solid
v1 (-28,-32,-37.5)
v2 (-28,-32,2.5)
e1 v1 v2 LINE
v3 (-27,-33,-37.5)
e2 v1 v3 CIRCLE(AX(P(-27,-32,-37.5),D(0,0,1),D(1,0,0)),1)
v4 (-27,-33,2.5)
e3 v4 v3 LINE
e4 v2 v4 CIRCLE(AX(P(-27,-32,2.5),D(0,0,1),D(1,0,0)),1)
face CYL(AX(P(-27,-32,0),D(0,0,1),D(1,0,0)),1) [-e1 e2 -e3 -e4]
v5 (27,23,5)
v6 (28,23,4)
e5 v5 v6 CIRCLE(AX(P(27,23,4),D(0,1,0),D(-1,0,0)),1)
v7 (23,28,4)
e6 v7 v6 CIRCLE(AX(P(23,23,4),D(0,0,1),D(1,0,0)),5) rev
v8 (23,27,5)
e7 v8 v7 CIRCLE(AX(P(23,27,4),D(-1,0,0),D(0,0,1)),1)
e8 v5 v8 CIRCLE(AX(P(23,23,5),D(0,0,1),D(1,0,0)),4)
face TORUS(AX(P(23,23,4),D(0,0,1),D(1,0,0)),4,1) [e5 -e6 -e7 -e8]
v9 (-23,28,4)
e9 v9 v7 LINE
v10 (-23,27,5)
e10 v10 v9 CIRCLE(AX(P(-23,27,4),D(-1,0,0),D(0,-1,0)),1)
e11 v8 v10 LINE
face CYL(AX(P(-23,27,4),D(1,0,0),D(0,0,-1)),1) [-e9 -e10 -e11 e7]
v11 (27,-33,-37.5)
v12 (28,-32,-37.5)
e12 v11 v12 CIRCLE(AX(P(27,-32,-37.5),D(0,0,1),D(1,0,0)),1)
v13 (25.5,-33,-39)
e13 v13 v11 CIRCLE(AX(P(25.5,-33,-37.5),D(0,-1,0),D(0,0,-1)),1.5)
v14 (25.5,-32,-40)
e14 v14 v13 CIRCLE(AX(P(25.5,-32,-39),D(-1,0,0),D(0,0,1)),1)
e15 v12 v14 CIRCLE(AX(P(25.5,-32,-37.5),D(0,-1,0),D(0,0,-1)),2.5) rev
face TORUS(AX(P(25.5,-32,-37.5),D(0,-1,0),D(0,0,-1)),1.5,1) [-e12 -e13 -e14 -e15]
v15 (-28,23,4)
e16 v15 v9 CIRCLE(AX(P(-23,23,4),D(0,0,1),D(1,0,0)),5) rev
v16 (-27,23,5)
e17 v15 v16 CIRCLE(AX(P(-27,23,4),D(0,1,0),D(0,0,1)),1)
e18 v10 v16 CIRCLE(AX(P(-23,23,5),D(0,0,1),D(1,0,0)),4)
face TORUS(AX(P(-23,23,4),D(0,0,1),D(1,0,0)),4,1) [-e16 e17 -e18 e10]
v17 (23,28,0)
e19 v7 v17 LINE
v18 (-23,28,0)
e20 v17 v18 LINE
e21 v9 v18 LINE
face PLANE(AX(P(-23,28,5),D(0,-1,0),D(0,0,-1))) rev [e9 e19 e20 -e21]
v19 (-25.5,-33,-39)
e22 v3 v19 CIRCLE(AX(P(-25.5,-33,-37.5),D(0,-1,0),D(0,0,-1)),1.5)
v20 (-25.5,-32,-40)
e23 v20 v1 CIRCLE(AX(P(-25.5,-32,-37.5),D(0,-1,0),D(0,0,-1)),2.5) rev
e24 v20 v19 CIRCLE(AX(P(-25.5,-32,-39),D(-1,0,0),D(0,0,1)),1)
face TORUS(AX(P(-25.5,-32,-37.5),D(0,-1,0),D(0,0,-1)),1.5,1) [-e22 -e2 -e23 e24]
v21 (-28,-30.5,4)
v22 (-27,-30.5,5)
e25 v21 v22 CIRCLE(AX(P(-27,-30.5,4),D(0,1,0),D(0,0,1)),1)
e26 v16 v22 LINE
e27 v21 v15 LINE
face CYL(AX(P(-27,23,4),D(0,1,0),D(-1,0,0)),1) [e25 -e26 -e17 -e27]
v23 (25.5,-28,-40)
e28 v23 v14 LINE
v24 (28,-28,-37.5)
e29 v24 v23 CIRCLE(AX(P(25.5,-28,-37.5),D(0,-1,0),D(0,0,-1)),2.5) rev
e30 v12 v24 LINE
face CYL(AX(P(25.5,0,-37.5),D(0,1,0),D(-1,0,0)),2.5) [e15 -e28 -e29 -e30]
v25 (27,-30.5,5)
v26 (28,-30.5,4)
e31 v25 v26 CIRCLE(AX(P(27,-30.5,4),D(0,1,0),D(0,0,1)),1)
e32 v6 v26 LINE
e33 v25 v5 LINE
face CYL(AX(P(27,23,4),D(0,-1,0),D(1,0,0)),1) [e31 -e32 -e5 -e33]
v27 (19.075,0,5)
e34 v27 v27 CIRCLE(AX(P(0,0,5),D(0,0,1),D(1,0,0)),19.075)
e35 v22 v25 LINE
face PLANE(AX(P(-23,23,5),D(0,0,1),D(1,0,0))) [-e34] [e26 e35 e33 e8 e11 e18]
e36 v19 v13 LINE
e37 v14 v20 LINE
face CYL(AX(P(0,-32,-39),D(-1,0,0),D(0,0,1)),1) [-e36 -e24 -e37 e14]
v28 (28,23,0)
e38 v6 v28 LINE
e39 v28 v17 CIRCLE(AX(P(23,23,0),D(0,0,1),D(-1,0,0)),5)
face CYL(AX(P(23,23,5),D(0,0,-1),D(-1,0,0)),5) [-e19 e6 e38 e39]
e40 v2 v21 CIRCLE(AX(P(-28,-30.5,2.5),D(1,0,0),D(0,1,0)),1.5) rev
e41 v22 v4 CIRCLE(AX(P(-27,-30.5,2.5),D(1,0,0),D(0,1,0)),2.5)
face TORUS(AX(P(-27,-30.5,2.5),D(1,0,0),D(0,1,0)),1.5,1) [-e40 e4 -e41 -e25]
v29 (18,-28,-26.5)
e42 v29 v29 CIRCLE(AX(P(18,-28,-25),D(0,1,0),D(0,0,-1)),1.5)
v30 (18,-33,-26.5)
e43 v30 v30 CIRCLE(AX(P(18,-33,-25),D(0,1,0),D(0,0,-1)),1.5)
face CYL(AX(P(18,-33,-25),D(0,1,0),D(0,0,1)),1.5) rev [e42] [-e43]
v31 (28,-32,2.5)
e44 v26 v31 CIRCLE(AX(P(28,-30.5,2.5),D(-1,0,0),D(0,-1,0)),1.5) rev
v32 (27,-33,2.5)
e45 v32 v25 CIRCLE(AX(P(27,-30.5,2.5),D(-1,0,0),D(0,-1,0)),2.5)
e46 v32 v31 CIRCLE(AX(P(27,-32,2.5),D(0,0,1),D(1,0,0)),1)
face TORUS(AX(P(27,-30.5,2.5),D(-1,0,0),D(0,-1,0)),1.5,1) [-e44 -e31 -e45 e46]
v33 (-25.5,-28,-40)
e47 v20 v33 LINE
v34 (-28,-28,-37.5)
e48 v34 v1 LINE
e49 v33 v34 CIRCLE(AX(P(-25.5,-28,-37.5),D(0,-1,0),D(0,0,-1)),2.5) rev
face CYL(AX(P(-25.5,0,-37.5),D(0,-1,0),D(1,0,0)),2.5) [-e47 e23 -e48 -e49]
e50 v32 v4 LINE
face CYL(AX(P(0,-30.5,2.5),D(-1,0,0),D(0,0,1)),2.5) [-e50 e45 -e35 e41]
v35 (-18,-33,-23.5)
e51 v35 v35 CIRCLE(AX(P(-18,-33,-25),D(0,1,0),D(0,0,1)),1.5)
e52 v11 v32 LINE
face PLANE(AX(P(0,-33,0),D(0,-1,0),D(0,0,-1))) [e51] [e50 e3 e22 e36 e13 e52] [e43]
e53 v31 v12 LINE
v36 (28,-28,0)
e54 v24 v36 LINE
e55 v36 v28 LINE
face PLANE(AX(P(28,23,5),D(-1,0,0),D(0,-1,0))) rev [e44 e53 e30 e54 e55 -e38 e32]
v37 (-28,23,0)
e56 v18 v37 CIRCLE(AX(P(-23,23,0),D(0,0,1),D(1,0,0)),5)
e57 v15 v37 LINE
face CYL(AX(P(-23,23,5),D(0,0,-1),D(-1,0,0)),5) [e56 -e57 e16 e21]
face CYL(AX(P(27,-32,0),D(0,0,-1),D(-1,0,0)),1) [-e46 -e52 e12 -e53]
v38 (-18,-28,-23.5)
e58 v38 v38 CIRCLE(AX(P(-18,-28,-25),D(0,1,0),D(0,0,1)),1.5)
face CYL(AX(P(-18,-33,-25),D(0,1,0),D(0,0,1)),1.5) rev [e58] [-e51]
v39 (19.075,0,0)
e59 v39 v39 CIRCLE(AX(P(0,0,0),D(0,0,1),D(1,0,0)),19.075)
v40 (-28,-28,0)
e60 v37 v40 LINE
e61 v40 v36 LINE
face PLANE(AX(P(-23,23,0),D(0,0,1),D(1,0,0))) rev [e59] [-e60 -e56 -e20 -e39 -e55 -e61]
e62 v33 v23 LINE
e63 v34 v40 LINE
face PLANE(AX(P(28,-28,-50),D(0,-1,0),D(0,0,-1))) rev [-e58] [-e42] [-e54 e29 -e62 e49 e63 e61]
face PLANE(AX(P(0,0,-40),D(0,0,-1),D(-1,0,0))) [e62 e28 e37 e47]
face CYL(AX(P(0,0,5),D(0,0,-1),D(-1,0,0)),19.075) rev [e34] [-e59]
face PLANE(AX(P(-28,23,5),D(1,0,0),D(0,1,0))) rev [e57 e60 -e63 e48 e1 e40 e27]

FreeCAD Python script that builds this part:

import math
import FreeCAD as App
import Part
import Sketcher

V = App.Vector


def edges_at(feature, points):
    """Names of the edges that pass closest to the given points."""
    edges = feature.Shape.Edges
    near = lambda p: min(range(len(edges)), key=lambda i: edges[i].distToShape(Part.Vertex(*p))[0])
    return sorted({f"Edge{near(p) + 1}" for p in points})

doc = App.newDocument("Part")
body = doc.addObject("PartDesign::Body", "Body")

# Sketch on XY plane
sketch1 = body.newObject("Sketcher::SketchObject", "Sketch")
sketch1.AttachmentSupport = (doc.getObject("XY_Plane"), [""])
sketch1.MapMode = "FlatFace"
sketch1.addGeometry([
    Part.LineSegment(V(23, 28, 0), V(-23, 28, 0)),  # 0
    Part.ArcOfCircle(Part.Circle(V(-23, 23, 0), V(0, 0, 1), 5), math.radians(90), math.radians(180)),  # 1
    Part.LineSegment(V(-28, 23, 0), V(-28, -28, 0)),  # 2
    Part.LineSegment(V(-28, -28, 0), V(28, -28, 0)),  # 3
    Part.LineSegment(V(28, -28, 0), V(28, 23, 0)),  # 4
    Part.ArcOfCircle(Part.Circle(V(23, 23, 0), V(0, 0, 1), 5), math.radians(0), math.radians(90)),  # 5
    Part.Circle(V(0, 0, 0), V(0, 0, 1), 19.075),  # 6
], False)
sketch1.addConstraint([
    Sketcher.Constraint("Tangent", 0, 2, 1, 1),
    Sketcher.Constraint("Tangent", 1, 2, 2, 1),
    Sketcher.Constraint("Coincident", 2, 2, 3, 1),
    Sketcher.Constraint("Coincident", 3, 2, 4, 1),
    Sketcher.Constraint("Tangent", 4, 2, 5, 1),
    Sketcher.Constraint("Tangent", 5, 2, 0, 1),
    Sketcher.Constraint("Horizontal", 0),
    Sketcher.Constraint("Vertical", 2),
    Sketcher.Constraint("Horizontal", 3),
    Sketcher.Constraint("Vertical", 4),
    Sketcher.Constraint("Coincident", 6, 3, -1, 1),
    Sketcher.Constraint("Equal", 1, 5),
    Sketcher.Constraint("Radius", 1, 5.0),
    Sketcher.Constraint("Diameter", 6, 38.15),
    Sketcher.Constraint("DistanceX", 0, 2, 0, 1, 46.0),
    Sketcher.Constraint("DistanceY", 2, 2, 2, 1, 51.0),
    Sketcher.Constraint("DistanceX", 1, 3, -1, 1, 23.0),
    Sketcher.Constraint("DistanceY", -1, 1, 1, 3, 23.0),
])
pad1 = body.newObject("PartDesign::Pad", "Pad")
pad1.Profile = sketch1
pad1.Length = 5

# Sketch on XZ plane
sketch2 = body.newObject("Sketcher::SketchObject", "Sketch001")
sketch2.AttachmentSupport = (doc.getObject("XZ_Plane"), [""])
sketch2.MapMode = "FlatFace"
sketch2.AttachmentOffset = App.Placement(V(0, 0, 28), App.Rotation())
sketch2.addGeometry([
    Part.LineSegment(V(-28, 5, 0), V(-28, 0, 0)),
    Part.LineSegment(V(-28, 0, 0), V(28, 0, 0)),
    Part.LineSegment(V(28, 0, 0), V(28, 5, 0)),
    Part.LineSegment(V(28, 5, 0), V(-28, 5, 0)),
], False)
sketch2.addConstraint([
    Sketcher.Constraint("Coincident", 0, 2, 1, 1),
    Sketcher.Constraint("Coincident", 1, 2, 2, 1),
    Sketcher.Constraint("Coincident", 2, 2, 3, 1),
    Sketcher.Constraint("Coincident", 3, 2, 0, 1),
    Sketcher.Constraint("Vertical", 0),
    Sketcher.Constraint("Horizontal", 1),
    Sketcher.Constraint("Vertical", 2),
    Sketcher.Constraint("Horizontal", 3),
    Sketcher.Constraint("Symmetric", 0, 2, 1, 2, -1, 1),
    Sketcher.Constraint("DistanceX", 1, 1, 1, 2, 56.0),
    Sketcher.Constraint("DistanceY", 0, 2, 0, 1, 5.0),
])
pad2 = body.newObject("PartDesign::Pad", "Pad001")
pad2.Profile = sketch2
pad2.Length = 5

# Sketch on XY plane
sketch3 = body.newObject("Sketcher::SketchObject", "Sketch002")
sketch3.AttachmentSupport = (doc.getObject("XY_Plane"), [""])
sketch3.MapMode = "FlatFace"
sketch3.addGeometry([
    Part.LineSegment(V(28, -28, 0), V(28, -33, 0)),
    Part.LineSegment(V(28, -33, 0), V(-28, -33, 0)),
    Part.LineSegment(V(-28, -33, 0), V(-28, -28, 0)),
    Part.LineSegment(V(-28, -28, 0), V(28, -28, 0)),
], False)
sketch3.addConstraint([
    Sketcher.Constraint("Coincident", 0, 2, 1, 1),
    Sketcher.Constraint("Coincident", 1, 2, 2, 1),
    Sketcher.Constraint("Coincident", 2, 2, 3, 1),
    Sketcher.Constraint("Coincident", 3, 2, 0, 1),
    Sketcher.Constraint("Vertical", 0),
    Sketcher.Constraint("Horizontal", 1),
    Sketcher.Constraint("Vertical", 2),
    Sketcher.Constraint("Horizontal", 3),
    Sketcher.Constraint("DistanceX", 1, 2, 1, 1, 56.0),
    Sketcher.Constraint("DistanceY", 0, 2, 0, 1, 5.0),
    Sketcher.Constraint("DistanceX", -1, 1, 0, 2, 28.0),
    Sketcher.Constraint("DistanceY", 0, 2, -1, 1, 33.0),
])
pad3 = body.newObject("PartDesign::Pad", "Pad002")
pad3.Profile = sketch3
pad3.Length = 50
pad3.Reversed = True
doc.recompute()

fillet = body.newObject("PartDesign::Fillet", "Fillet")
fillet.Base = (pad3, edges_at(pad3, [(0, -33, 5)]))
fillet.Radius = 2.5

# Sketch on XZ plane
sketch4 = body.newObject("Sketcher::SketchObject", "Sketch003")
sketch4.AttachmentSupport = (doc.getObject("XZ_Plane"), [""])
sketch4.MapMode = "FlatFace"
sketch4.AttachmentOffset = App.Placement(V(0, 0, 28), App.Rotation())
sketch4.addGeometry([
    Part.Circle(V(-18, -25, 0), V(0, 0, 1), 1.5),
    Part.Circle(V(18, -25, 0), V(0, 0, 1), 1.5),
], False)
sketch4.addConstraint([
    Sketcher.Constraint("Equal", 0, 1),
    Sketcher.Constraint("Symmetric", 0, 3, 1, 3, -2),
    Sketcher.Constraint("Diameter", 0, 3.0),
    Sketcher.Constraint("DistanceX", 0, 3, -1, 1, 18.0),
    Sketcher.Constraint("DistanceY", 0, 3, -1, 1, 25.0),
])
pocket1 = body.newObject("PartDesign::Pocket", "Pocket")
pocket1.Profile = sketch4
pocket1.Length = 5
pocket1.Reversed = True

# Sketch on XY plane
sketch5 = body.newObject("Sketcher::SketchObject", "Sketch004")
sketch5.AttachmentSupport = (doc.getObject("XY_Plane"), [""])
sketch5.MapMode = "FlatFace"
sketch5.AttachmentOffset = App.Placement(V(0, 0, -50), App.Rotation())
sketch5.addGeometry([
    Part.LineSegment(V(28, -28, 0), V(28, -33, 0)),
    Part.LineSegment(V(28, -33, 0), V(-28, -33, 0)),
    Part.LineSegment(V(-28, -33, 0), V(-28, -28, 0)),
    Part.LineSegment(V(-28, -28, 0), V(28, -28, 0)),
], False)
sketch5.addConstraint([
    Sketcher.Constraint("Coincident", 0, 2, 1, 1),
    Sketcher.Constraint("Coincident", 1, 2, 2, 1),
    Sketcher.Constraint("Coincident", 2, 2, 3, 1),
    Sketcher.Constraint("Coincident", 3, 2, 0, 1),
    Sketcher.Constraint("Vertical", 0),
    Sketcher.Constraint("Horizontal", 1),
    Sketcher.Constraint("Vertical", 2),
    Sketcher.Constraint("Horizontal", 3),
    Sketcher.Constraint("DistanceX", 1, 2, 1, 1, 56.0),
    Sketcher.Constraint("DistanceY", 0, 2, 0, 1, 5.0),
    Sketcher.Constraint("DistanceX", -1, 1, 0, 2, 28.0),
    Sketcher.Constraint("DistanceY", 0, 2, -1, 1, 33.0),
])
pocket2 = body.newObject("PartDesign::Pocket", "Pocket001")
pocket2.Profile = sketch5
pocket2.Length = 10
pocket2.Reversed = True
doc.recompute()

fillet2 = body.newObject("PartDesign::Fillet", "Fillet001")
fillet2.Base = (pocket2, edges_at(pocket2, [(28, -30.5, -40), (-28, -30.5, -40)]))
fillet2.Radius = 2.5
doc.recompute()

fillet3 = body.newObject("PartDesign::Fillet", "Fillet002")
fillet3.Base = (fillet2, edges_at(fillet2, [
    (0, 28, 5),
    (-26.536, 26.536, 5),
    (-28, -3.75, 5),
    (-28, -33, -17.5),
    (-28, -32.268, 4.268),
    (28, -3.75, 5),
    (28, -32.268, 4.268),
    (0, -33, -40),
    (26.536, 26.536, 5),
    (28, -33, -17.5),
    (27.268, -33, -39.268),
    (-27.268, -33, -39.268),
]))
fillet3.Radius = 1

doc.recompute()
